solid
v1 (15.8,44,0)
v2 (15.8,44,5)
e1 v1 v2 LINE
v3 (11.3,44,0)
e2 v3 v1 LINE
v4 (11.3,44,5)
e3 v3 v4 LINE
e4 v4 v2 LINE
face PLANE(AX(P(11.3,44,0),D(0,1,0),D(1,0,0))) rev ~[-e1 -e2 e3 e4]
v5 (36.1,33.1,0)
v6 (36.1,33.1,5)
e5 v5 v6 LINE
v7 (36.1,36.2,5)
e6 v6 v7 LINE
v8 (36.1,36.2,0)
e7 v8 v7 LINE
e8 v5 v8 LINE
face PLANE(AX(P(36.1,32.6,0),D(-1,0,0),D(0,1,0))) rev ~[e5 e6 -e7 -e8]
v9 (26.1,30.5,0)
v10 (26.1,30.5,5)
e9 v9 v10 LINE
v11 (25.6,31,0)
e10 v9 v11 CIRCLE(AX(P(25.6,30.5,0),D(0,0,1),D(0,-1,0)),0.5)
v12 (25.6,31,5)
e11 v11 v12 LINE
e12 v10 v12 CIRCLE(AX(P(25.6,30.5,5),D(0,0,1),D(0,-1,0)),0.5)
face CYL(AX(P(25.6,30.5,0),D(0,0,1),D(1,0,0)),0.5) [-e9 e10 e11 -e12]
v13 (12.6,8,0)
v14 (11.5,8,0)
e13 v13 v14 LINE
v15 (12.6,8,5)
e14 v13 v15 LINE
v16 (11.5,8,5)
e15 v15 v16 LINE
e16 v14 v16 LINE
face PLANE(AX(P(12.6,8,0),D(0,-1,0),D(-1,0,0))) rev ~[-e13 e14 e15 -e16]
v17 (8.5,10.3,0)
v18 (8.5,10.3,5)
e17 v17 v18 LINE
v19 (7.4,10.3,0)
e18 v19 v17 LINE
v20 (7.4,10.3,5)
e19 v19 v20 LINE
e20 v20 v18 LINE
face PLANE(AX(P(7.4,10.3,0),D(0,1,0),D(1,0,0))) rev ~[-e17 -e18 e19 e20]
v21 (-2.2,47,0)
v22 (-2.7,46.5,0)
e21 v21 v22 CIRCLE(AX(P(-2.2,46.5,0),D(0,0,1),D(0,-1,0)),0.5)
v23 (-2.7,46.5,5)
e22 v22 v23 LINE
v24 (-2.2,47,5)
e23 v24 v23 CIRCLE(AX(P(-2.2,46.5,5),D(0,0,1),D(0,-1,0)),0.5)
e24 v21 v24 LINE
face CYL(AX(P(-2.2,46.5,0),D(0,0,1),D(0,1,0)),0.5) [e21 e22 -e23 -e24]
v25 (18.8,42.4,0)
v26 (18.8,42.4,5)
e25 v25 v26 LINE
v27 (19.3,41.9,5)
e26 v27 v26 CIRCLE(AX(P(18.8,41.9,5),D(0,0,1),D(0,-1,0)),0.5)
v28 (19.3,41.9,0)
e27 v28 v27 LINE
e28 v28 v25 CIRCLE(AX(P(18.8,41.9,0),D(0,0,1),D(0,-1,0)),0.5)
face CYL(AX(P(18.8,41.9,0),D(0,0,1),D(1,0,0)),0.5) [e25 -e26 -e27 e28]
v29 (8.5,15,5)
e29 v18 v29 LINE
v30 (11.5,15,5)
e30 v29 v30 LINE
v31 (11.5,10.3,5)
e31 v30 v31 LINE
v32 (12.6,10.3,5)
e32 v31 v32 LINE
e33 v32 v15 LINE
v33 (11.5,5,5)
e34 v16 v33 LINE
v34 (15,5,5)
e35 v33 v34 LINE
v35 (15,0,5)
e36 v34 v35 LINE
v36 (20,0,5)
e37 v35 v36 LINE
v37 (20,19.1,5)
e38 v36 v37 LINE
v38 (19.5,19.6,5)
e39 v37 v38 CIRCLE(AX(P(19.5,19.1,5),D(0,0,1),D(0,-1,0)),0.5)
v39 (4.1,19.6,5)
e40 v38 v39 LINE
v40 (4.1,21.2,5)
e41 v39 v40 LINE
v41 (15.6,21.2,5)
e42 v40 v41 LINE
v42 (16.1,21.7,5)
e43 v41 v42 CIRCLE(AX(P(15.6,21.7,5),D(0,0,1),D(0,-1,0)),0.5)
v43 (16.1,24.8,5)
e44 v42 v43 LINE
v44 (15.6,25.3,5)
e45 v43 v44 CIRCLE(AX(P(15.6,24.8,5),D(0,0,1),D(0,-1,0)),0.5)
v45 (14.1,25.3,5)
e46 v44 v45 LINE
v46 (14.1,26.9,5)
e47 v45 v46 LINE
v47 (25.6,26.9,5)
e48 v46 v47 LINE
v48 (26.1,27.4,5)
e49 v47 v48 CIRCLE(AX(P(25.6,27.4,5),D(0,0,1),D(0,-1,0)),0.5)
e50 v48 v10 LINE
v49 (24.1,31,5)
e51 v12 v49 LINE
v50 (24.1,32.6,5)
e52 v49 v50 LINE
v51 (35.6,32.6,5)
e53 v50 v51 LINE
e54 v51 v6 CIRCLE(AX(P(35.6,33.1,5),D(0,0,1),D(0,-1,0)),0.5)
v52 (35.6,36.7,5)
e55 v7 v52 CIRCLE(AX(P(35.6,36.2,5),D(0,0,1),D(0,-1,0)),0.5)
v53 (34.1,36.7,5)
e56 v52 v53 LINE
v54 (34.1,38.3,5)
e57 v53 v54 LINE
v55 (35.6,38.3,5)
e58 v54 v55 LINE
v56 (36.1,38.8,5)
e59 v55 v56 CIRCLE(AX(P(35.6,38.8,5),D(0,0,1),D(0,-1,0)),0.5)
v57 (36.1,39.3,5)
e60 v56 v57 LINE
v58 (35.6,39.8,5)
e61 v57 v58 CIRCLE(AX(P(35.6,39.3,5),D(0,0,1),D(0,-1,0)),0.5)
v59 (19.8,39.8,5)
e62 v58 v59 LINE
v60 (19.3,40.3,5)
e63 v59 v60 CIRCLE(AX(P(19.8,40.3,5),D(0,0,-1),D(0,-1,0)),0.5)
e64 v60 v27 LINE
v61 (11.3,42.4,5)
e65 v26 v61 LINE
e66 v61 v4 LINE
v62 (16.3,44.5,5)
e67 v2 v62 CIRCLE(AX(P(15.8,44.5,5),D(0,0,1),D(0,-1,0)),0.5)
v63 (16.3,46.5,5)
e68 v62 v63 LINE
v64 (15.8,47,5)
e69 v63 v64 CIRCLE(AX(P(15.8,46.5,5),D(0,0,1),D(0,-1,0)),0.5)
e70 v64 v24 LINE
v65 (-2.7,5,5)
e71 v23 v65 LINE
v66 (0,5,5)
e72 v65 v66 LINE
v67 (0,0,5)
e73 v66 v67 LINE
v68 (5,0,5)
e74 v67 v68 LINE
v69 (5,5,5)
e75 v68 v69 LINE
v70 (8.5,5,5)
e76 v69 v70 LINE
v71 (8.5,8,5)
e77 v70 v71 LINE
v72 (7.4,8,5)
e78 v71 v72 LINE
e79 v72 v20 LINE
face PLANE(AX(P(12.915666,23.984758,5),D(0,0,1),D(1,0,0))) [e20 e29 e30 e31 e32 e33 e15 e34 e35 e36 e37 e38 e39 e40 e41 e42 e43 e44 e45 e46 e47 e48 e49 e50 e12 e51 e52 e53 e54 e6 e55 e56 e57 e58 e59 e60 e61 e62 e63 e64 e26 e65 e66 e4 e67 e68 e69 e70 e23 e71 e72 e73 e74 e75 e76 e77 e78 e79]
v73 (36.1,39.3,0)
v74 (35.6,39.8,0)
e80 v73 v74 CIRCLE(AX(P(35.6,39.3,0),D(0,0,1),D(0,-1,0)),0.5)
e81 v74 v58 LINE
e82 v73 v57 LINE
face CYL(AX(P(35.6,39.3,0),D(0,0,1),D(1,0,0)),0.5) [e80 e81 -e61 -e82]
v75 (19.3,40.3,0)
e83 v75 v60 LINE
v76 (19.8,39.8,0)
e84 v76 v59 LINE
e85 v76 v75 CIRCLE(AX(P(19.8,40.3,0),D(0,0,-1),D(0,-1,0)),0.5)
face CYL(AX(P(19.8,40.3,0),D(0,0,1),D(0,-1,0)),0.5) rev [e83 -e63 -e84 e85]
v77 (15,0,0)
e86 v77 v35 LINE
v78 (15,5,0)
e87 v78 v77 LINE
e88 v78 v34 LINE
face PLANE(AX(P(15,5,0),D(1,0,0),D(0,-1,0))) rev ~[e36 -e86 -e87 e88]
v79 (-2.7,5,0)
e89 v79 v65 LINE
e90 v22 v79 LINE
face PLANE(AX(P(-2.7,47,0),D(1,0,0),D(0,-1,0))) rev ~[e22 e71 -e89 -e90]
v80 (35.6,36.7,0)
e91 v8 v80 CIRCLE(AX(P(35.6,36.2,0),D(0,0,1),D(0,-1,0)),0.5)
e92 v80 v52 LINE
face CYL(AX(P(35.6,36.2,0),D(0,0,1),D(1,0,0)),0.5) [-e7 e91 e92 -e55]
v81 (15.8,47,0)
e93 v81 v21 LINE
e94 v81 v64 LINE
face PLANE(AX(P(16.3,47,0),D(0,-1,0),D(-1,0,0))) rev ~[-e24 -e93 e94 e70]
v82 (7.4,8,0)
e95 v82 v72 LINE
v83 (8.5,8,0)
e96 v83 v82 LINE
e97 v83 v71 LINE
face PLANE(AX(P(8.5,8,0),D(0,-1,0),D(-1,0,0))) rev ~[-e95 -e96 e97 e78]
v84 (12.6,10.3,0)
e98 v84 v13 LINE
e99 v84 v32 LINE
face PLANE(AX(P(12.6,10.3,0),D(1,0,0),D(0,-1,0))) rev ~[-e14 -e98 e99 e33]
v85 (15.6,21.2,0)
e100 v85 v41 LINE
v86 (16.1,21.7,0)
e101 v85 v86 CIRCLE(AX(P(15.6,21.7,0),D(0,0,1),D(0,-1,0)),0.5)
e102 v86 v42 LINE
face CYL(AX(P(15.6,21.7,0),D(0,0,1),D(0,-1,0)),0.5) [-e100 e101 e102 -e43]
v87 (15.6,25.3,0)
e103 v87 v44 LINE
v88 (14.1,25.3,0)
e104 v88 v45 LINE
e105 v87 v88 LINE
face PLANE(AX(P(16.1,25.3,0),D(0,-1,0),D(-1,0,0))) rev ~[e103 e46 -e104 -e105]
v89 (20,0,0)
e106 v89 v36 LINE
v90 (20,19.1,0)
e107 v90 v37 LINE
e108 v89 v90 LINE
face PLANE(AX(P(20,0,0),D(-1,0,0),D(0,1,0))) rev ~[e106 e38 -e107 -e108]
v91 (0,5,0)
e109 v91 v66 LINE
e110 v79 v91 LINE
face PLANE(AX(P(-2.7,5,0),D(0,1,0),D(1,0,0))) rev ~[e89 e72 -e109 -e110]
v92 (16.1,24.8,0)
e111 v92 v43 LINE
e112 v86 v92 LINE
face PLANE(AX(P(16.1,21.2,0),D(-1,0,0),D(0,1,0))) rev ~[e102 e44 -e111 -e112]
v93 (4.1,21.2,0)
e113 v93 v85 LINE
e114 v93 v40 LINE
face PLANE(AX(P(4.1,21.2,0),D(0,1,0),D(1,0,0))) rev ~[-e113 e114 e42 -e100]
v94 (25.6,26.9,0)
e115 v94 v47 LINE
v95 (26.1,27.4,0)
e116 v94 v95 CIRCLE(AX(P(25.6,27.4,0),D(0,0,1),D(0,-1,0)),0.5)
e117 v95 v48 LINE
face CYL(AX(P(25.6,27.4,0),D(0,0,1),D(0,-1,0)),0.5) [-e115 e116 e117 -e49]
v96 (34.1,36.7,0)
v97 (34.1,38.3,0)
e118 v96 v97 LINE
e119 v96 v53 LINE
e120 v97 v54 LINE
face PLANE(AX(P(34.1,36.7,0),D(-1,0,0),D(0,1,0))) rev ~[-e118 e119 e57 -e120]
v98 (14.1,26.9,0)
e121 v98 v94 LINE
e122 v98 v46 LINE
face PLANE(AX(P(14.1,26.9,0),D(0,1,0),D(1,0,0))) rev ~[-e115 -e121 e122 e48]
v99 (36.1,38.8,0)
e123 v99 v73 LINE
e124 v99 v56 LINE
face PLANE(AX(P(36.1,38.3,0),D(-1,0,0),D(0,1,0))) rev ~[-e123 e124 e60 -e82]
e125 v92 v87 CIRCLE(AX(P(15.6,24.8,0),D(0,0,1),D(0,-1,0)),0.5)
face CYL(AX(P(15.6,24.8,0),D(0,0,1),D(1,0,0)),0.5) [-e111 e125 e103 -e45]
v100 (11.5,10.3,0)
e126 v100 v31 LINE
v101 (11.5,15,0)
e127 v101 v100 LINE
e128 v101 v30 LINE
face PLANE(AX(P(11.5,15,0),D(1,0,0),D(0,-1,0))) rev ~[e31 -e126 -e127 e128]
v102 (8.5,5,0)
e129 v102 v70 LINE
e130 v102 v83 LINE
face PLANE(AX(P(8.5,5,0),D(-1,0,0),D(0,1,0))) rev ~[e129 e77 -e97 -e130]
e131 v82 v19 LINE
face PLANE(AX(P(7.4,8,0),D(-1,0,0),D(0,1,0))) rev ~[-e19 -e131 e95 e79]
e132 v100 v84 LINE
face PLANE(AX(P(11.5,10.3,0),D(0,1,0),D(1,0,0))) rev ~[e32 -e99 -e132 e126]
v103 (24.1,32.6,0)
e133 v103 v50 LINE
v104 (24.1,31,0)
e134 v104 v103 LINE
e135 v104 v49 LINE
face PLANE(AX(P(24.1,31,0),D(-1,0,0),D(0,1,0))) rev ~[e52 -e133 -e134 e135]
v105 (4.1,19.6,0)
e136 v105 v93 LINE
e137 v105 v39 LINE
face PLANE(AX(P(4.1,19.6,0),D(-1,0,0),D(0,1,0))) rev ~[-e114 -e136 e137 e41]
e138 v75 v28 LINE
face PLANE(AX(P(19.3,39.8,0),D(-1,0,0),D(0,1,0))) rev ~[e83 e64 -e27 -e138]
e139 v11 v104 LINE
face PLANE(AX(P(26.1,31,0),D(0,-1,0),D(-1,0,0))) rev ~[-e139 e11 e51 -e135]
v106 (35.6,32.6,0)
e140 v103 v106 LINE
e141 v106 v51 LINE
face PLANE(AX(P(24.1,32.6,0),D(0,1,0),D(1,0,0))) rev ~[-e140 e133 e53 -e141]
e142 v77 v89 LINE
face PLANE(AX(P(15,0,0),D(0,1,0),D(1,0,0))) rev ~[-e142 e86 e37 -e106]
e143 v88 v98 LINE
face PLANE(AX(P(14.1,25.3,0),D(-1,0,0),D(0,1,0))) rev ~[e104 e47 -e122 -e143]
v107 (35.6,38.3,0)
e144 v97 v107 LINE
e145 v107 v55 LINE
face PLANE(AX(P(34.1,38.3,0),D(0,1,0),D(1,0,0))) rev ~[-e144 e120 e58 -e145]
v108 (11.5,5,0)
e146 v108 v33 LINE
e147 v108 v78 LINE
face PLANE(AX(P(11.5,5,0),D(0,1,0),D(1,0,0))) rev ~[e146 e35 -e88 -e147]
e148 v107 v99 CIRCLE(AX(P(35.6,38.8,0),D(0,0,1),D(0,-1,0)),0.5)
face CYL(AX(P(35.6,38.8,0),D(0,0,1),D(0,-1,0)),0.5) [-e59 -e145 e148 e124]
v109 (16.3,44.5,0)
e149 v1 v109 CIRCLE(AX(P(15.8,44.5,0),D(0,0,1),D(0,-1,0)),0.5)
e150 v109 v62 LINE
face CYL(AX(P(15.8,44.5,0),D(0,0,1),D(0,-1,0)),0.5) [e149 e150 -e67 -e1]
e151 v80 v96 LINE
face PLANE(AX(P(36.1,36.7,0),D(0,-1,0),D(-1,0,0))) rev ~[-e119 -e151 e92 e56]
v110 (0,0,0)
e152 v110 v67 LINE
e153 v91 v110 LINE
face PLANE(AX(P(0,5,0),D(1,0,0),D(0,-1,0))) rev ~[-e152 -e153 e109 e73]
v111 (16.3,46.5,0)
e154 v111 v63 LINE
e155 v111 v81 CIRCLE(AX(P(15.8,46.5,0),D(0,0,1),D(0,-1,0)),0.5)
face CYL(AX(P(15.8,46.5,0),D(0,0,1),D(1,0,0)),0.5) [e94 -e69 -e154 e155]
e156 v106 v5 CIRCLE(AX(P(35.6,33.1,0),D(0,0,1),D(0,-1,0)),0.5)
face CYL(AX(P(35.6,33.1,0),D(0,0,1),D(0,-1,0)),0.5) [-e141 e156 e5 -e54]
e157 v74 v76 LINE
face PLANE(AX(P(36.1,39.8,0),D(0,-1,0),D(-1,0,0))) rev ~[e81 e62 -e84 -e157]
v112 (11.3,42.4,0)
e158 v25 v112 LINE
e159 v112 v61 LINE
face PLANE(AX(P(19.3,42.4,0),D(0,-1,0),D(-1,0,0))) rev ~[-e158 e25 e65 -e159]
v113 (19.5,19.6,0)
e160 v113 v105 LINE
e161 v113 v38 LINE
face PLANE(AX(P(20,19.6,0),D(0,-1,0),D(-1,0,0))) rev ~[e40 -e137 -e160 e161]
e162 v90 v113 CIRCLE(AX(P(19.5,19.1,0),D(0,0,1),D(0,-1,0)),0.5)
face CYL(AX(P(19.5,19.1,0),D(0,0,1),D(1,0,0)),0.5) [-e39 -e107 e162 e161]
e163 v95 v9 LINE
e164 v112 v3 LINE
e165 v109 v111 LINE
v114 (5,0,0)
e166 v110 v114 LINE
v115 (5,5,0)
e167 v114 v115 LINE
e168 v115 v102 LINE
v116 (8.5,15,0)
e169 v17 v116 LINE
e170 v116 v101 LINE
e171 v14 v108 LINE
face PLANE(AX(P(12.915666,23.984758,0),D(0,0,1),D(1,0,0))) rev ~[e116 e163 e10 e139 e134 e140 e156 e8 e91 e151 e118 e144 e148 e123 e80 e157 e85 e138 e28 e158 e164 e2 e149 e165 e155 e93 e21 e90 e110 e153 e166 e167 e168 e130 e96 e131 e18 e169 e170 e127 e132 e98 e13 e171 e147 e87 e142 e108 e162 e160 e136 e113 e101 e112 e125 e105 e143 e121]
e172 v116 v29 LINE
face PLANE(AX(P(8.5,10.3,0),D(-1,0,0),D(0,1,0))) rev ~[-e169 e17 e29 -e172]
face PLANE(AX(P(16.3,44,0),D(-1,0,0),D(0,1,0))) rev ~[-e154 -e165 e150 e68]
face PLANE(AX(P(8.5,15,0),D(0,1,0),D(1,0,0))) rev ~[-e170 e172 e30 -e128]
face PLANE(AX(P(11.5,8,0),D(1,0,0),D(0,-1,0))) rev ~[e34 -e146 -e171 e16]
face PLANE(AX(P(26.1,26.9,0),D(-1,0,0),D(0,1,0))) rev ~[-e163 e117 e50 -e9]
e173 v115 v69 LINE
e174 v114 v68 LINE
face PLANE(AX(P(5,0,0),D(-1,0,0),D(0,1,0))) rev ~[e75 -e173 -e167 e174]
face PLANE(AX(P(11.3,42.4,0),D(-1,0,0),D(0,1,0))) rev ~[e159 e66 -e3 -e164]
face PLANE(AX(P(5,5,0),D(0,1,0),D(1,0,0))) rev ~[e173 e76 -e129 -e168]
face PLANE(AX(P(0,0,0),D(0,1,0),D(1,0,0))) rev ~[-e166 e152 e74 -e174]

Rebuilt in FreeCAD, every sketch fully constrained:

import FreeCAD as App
import Part
import Sketcher

V = App.Vector
Q = App.Units.Quantity


def edges_at(feature, points):
    """Names of the edges that pass closest to the given points."""
    edges = feature.Shape.Edges
    near = lambda p: min(range(len(edges)), key=lambda i: edges[i].distToShape(Part.Vertex(*p))[0])
    return sorted({f"Edge{near(p) + 1}" for p in points})

doc = App.newDocument("Part")
body = doc.addObject("PartDesign::Body", "Body")

sketch1 = body.newObject("Sketcher::SketchObject", "Sketch")
sketch1.AttachmentSupport = (doc.getObject("XY_Plane"), [""])
sketch1.MapMode = "FlatFace"
sketch1.addGeometry([
    Part.LineSegment(V(14.1, 25.3, 0), V(14.1, 26.9, 0)),
    Part.LineSegment(V(14.1, 26.9, 0), V(26.1, 26.9, 0)),
    Part.LineSegment(V(26.1, 26.9, 0), V(26.1, 31, 0)),
    Part.LineSegment(V(26.1, 31, 0), V(24.1, 31, 0)),
    Part.LineSegment(V(24.1, 31, 0), V(24.1, 32.6, 0)),
    Part.LineSegment(V(24.1, 32.6, 0), V(36.1, 32.6, 0)),
    Part.LineSegment(V(36.1, 32.6, 0), V(36.1, 36.7, 0)),
    Part.LineSegment(V(36.1, 36.7, 0), V(34.1, 36.7, 0)),
    Part.LineSegment(V(34.1, 36.7, 0), V(34.1, 38.3, 0)),
    Part.LineSegment(V(34.1, 38.3, 0), V(36.1, 38.3, 0)),
    Part.LineSegment(V(36.1, 38.3, 0), V(36.1, 39.8, 0)),
    Part.LineSegment(V(36.1, 39.8, 0), V(19.3, 39.8, 0)),
    Part.LineSegment(V(19.3, 39.8, 0), V(19.3, 42.4, 0)),
    Part.LineSegment(V(19.3, 42.4, 0), V(11.3, 42.4, 0)),
    Part.LineSegment(V(11.3, 42.4, 0), V(11.3, 44, 0)),
    Part.LineSegment(V(11.3, 44, 0), V(16.3, 44, 0)),
    Part.LineSegment(V(16.3, 44, 0), V(16.3, 47, 0)),
    Part.LineSegment(V(16.3, 47, 0), V(-2.7, 47, 0)),
    Part.LineSegment(V(-2.7, 47, 0), V(-2.7, 5, 0)),
    Part.LineSegment(V(-2.7, 5, 0), V(0, 5, 0)),
    Part.LineSegment(V(0, 5, 0), V(0, 0, 0)),
    Part.LineSegment(V(0, 0, 0), V(5, 0, 0)),
    Part.LineSegment(V(5, 0, 0), V(5, 5, 0)),
    Part.LineSegment(V(5, 5, 0), V(8.5, 5, 0)),
    Part.LineSegment(V(8.5, 5, 0), V(8.5, 8, 0)),
    Part.LineSegment(V(8.5, 8, 0), V(7.4, 8, 0)),
    Part.LineSegment(V(7.4, 8, 0), V(7.4, 10.3, 0)),
    Part.LineSegment(V(7.4, 10.3, 0), V(8.5, 10.3, 0)),
    Part.LineSegment(V(8.5, 10.3, 0), V(8.5, 15, 0)),
    Part.LineSegment(V(8.5, 15, 0), V(11.5, 15, 0)),
    Part.LineSegment(V(11.5, 15, 0), V(11.5, 10.3, 0)),
    Part.LineSegment(V(11.5, 10.3, 0), V(12.6, 10.3, 0)),
    Part.LineSegment(V(12.6, 10.3, 0), V(12.6, 8, 0)),
    Part.LineSegment(V(12.6, 8, 0), V(11.5, 8, 0)),
    Part.LineSegment(V(11.5, 8, 0), V(11.5, 5, 0)),
    Part.LineSegment(V(11.5, 5, 0), V(15, 5, 0)),
    Part.LineSegment(V(15, 5, 0), V(15, 0, 0)),
    Part.LineSegment(V(15, 0, 0), V(20, 0, 0)),
    Part.LineSegment(V(20, 0, 0), V(20, 19.6, 0)),
    Part.LineSegment(V(20, 19.6, 0), V(4.1, 19.6, 0)),
    Part.LineSegment(V(4.1, 19.6, 0), V(4.1, 21.2, 0)),
    Part.LineSegment(V(4.1, 21.2, 0), V(16.1, 21.2, 0)),
    Part.LineSegment(V(16.1, 21.2, 0), V(16.1, 25.3, 0)),
    Part.LineSegment(V(16.1, 25.3, 0), V(14.1, 25.3, 0)),
], False)
sketch1.addConstraint([
    Sketcher.Constraint("Coincident", 0, 2, 1, 1),
    Sketcher.Constraint("Coincident", 1, 2, 2, 1),
    Sketcher.Constraint("Coincident", 2, 2, 3, 1),
    Sketcher.Constraint("Coincident", 3, 2, 4, 1),
    Sketcher.Constraint("Coincident", 4, 2, 5, 1),
    Sketcher.Constraint("Coincident", 5, 2, 6, 1),
    Sketcher.Constraint("Coincident", 6, 2, 7, 1),
    Sketcher.Constraint("Coincident", 7, 2, 8, 1),
    Sketcher.Constraint("Coincident", 8, 2, 9, 1),
    Sketcher.Constraint("Coincident", 9, 2, 10, 1),
    Sketcher.Constraint("Coincident", 10, 2, 11, 1),
    Sketcher.Constraint("Coincident", 11, 2, 12, 1),
    Sketcher.Constraint("Coincident", 12, 2, 13, 1),
    Sketcher.Constraint("Coincident", 13, 2, 14, 1),
    Sketcher.Constraint("Coincident", 14, 2, 15, 1),
    Sketcher.Constraint("Coincident", 15, 2, 16, 1),
    Sketcher.Constraint("Coincident", 16, 2, 17, 1),
    Sketcher.Constraint("Coincident", 17, 2, 18, 1),
    Sketcher.Constraint("Coincident", 18, 2, 19, 1),
    Sketcher.Constraint("Coincident", 19, 2, 20, 1),
    Sketcher.Constraint("Coincident", 20, 2, 21, 1),
    Sketcher.Constraint("Coincident", 21, 2, 22, 1),
    Sketcher.Constraint("Coincident", 22, 2, 23, 1),
    Sketcher.Constraint("Coincident", 23, 2, 24, 1),
    Sketcher.Constraint("Coincident", 24, 2, 25, 1),
    Sketcher.Constraint("Coincident", 25, 2, 26, 1),
    Sketcher.Constraint("Coincident", 26, 2, 27, 1),
    Sketcher.Constraint("Coincident", 27, 2, 28, 1),
    Sketcher.Constraint("Coincident", 28, 2, 29, 1),
    Sketcher.Constraint("Coincident", 29, 2, 30, 1),
    Sketcher.Constraint("Coincident", 30, 2, 31, 1),
    Sketcher.Constraint("Coincident", 31, 2, 32, 1),
    Sketcher.Constraint("Coincident", 32, 2, 33, 1),
    Sketcher.Constraint("Coincident", 33, 2, 34, 1),
    Sketcher.Constraint("Coincident", 34, 2, 35, 1),
    Sketcher.Constraint("Coincident", 35, 2, 36, 1),
    Sketcher.Constraint("Coincident", 36, 2, 37, 1),
    Sketcher.Constraint("Coincident", 37, 2, 38, 1),
    Sketcher.Constraint("Coincident", 38, 2, 39, 1),
    Sketcher.Constraint("Coincident", 39, 2, 40, 1),
    Sketcher.Constraint("Coincident", 40, 2, 41, 1),
    Sketcher.Constraint("Coincident", 41, 2, 42, 1),
    Sketcher.Constraint("Coincident", 42, 2, 43, 1),
    Sketcher.Constraint("Coincident", 43, 2, 0, 1),
    Sketcher.Constraint("Vertical", 0),
    Sketcher.Constraint("Horizontal", 1),
    Sketcher.Constraint("Vertical", 2),
    Sketcher.Constraint("Horizontal", 3),
    Sketcher.Constraint("Vertical", 4),
    Sketcher.Constraint("Horizontal", 5),
    Sketcher.Constraint("Vertical", 6),
    Sketcher.Constraint("Horizontal", 7),
    Sketcher.Constraint("Vertical", 8),
    Sketcher.Constraint("Horizontal", 9),
    Sketcher.Constraint("Vertical", 10),
    Sketcher.Constraint("Horizontal", 11),
    Sketcher.Constraint("Vertical", 12),
    Sketcher.Constraint("Horizontal", 13),
    Sketcher.Constraint("Vertical", 14),
    Sketcher.Constraint("Horizontal", 15),
    Sketcher.Constraint("Vertical", 16),
    Sketcher.Constraint("Horizontal", 17),
    Sketcher.Constraint("Vertical", 18),
    Sketcher.Constraint("Horizontal", 19),
    Sketcher.Constraint("Vertical", 20),
    Sketcher.Constraint("Horizontal", 21),
    Sketcher.Constraint("Vertical", 22),
    Sketcher.Constraint("Horizontal", 23),
    Sketcher.Constraint("Vertical", 24),
    Sketcher.Constraint("Horizontal", 25),
    Sketcher.Constraint("Vertical", 26),
    Sketcher.Constraint("Horizontal", 27),
    Sketcher.Constraint("Vertical", 28),
    Sketcher.Constraint("Horizontal", 29),
    Sketcher.Constraint("Vertical", 30),
    Sketcher.Constraint("Horizontal", 31),
    Sketcher.Constraint("Vertical", 32),
    Sketcher.Constraint("Horizontal", 33),
    Sketcher.Constraint("Vertical", 34),
    Sketcher.Constraint("Horizontal", 35),
    Sketcher.Constraint("Vertical", 36),
    Sketcher.Constraint("Horizontal", 37),
    Sketcher.Constraint("Vertical", 38),
    Sketcher.Constraint("Horizontal", 39),
    Sketcher.Constraint("Vertical", 40),
    Sketcher.Constraint("Horizontal", 41),
    Sketcher.Constraint("Vertical", 42),
    Sketcher.Constraint("Horizontal", 43),
    Sketcher.Constraint("Coincident", 20, 2, -1, 1),
    Sketcher.Constraint("PointOnObject", 36, 2, -1),
    Sketcher.Constraint("Horizontal", 19, 2, 22, 2),
    Sketcher.Constraint("Horizontal", 27, 2, 30, 2),
    Sketcher.Constraint("Horizontal", 25, 2, 32, 2),
    Sketcher.Constraint("Horizontal", 23, 2, 34, 2),
    Sketcher.Constraint("Vertical", 6, 2, 9, 2),
    Sketcher.Constraint("Vertical", 24, 2, 27, 2),
    Sketcher.Constraint("Vertical", 30, 2, 33, 2),
    Sketcher.Constraint("Equal", 1, 5),
    Sketcher.Constraint("Equal", 3, 7),
    Sketcher.Constraint("Equal", 15, 21),
    Sketcher.Constraint("Equal", 27, 31),
    Sketcher.Constraint("Equal", 23, 35),
    Sketcher.Constraint("Equal", 21, 37),
    Sketcher.Constraint("Equal", 5, 41),
    Sketcher.Constraint("Equal", 9, 43),
    Sketcher.Constraint("Equal", 0, 4),
    Sketcher.Constraint("Equal", 2, 6),
    Sketcher.Constraint("Equal", 4, 8),
    Sketcher.Constraint("Equal", 8, 14),
    Sketcher.Constraint("Equal", 29, 16),
    Sketcher.Constraint("Equal", 37, 20),
    Sketcher.Constraint("Equal", 16, 24),
    Sketcher.Constraint("Equal", 14, 40),
    Sketcher.Constraint("Equal", 6, 42),
    Sketcher.Constraint("DistanceX", 1, 1, 1, 2, Q("12 mm")),
    Sketcher.Constraint("DistanceX", 3, 2, 3, 1, Q("2 mm")),
    Sketcher.Constraint("DistanceX", 13, 2, 13, 1, Q("8 mm")),
    Sketcher.Constraint("DistanceX", 15, 1, 15, 2, Q("5 mm")),
    Sketcher.Constraint("DistanceX", 17, 2, 17, 1, Q("19 mm")),
    Sketcher.Constraint("DistanceX", 29, 1, 29, 2, Q("3 mm")),
    Sketcher.Constraint("DistanceY", 18, 2, 18, 1, Q("42 mm")),
    Sketcher.Constraint("DistanceX", 11, 2, 11, 1, Q("16.8 mm")),
    Sketcher.Constraint("DistanceX", 19, 1, 19, 2, Q("2.7 mm")),
    Sketcher.Constraint("DistanceX", 23, 1, 23, 2, Q("3.5 mm")),
    Sketcher.Constraint("DistanceX", 25, 2, 25, 1, Q("1.1 mm")),
    Sketcher.Constraint("DistanceY", 0, 1, 0, 2, Q("1.6 mm")),
    Sketcher.Constraint("DistanceY", 2, 1, 2, 2, Q("4.1 mm")),
    Sketcher.Constraint("DistanceY", 10, 1, 10, 2, Q("1.5 mm")),
    Sketcher.Constraint("DistanceY", 12, 1, 12, 2, Q("2.6 mm")),
    Sketcher.Constraint("DistanceY", 26, 1, 26, 2, Q("2.3 mm")),
    Sketcher.Constraint("DistanceY", 28, 1, 28, 2, Q("4.7 mm")),
])
pad1 = body.newObject("PartDesign::Pad", "Pad")
pad1.Profile = sketch1
pad1.Length = 5
doc.recompute()

fillet = body.newObject("PartDesign::Fillet", "Fillet")
fillet.Base = (pad1, edges_at(pad1, [
    (-2.7, 47, 2.5),
    (16.3, 47, 2.5),
    (16.3, 44, 2.5),
    (19.3, 42.4, 2.5),
    (19.3, 39.8, 2.5),
    (36.1, 39.8, 2.5),
    (36.1, 38.3, 2.5),
    (36.1, 36.7, 2.5),
    (36.1, 32.6, 2.5),
    (26.1, 31, 2.5),
    (26.1, 26.9, 2.5),
    (16.1, 25.3, 2.5),
    (16.1, 21.2, 2.5),
    (20, 19.6, 2.5),
]))
fillet.Radius = 0.5

doc.recompute()
